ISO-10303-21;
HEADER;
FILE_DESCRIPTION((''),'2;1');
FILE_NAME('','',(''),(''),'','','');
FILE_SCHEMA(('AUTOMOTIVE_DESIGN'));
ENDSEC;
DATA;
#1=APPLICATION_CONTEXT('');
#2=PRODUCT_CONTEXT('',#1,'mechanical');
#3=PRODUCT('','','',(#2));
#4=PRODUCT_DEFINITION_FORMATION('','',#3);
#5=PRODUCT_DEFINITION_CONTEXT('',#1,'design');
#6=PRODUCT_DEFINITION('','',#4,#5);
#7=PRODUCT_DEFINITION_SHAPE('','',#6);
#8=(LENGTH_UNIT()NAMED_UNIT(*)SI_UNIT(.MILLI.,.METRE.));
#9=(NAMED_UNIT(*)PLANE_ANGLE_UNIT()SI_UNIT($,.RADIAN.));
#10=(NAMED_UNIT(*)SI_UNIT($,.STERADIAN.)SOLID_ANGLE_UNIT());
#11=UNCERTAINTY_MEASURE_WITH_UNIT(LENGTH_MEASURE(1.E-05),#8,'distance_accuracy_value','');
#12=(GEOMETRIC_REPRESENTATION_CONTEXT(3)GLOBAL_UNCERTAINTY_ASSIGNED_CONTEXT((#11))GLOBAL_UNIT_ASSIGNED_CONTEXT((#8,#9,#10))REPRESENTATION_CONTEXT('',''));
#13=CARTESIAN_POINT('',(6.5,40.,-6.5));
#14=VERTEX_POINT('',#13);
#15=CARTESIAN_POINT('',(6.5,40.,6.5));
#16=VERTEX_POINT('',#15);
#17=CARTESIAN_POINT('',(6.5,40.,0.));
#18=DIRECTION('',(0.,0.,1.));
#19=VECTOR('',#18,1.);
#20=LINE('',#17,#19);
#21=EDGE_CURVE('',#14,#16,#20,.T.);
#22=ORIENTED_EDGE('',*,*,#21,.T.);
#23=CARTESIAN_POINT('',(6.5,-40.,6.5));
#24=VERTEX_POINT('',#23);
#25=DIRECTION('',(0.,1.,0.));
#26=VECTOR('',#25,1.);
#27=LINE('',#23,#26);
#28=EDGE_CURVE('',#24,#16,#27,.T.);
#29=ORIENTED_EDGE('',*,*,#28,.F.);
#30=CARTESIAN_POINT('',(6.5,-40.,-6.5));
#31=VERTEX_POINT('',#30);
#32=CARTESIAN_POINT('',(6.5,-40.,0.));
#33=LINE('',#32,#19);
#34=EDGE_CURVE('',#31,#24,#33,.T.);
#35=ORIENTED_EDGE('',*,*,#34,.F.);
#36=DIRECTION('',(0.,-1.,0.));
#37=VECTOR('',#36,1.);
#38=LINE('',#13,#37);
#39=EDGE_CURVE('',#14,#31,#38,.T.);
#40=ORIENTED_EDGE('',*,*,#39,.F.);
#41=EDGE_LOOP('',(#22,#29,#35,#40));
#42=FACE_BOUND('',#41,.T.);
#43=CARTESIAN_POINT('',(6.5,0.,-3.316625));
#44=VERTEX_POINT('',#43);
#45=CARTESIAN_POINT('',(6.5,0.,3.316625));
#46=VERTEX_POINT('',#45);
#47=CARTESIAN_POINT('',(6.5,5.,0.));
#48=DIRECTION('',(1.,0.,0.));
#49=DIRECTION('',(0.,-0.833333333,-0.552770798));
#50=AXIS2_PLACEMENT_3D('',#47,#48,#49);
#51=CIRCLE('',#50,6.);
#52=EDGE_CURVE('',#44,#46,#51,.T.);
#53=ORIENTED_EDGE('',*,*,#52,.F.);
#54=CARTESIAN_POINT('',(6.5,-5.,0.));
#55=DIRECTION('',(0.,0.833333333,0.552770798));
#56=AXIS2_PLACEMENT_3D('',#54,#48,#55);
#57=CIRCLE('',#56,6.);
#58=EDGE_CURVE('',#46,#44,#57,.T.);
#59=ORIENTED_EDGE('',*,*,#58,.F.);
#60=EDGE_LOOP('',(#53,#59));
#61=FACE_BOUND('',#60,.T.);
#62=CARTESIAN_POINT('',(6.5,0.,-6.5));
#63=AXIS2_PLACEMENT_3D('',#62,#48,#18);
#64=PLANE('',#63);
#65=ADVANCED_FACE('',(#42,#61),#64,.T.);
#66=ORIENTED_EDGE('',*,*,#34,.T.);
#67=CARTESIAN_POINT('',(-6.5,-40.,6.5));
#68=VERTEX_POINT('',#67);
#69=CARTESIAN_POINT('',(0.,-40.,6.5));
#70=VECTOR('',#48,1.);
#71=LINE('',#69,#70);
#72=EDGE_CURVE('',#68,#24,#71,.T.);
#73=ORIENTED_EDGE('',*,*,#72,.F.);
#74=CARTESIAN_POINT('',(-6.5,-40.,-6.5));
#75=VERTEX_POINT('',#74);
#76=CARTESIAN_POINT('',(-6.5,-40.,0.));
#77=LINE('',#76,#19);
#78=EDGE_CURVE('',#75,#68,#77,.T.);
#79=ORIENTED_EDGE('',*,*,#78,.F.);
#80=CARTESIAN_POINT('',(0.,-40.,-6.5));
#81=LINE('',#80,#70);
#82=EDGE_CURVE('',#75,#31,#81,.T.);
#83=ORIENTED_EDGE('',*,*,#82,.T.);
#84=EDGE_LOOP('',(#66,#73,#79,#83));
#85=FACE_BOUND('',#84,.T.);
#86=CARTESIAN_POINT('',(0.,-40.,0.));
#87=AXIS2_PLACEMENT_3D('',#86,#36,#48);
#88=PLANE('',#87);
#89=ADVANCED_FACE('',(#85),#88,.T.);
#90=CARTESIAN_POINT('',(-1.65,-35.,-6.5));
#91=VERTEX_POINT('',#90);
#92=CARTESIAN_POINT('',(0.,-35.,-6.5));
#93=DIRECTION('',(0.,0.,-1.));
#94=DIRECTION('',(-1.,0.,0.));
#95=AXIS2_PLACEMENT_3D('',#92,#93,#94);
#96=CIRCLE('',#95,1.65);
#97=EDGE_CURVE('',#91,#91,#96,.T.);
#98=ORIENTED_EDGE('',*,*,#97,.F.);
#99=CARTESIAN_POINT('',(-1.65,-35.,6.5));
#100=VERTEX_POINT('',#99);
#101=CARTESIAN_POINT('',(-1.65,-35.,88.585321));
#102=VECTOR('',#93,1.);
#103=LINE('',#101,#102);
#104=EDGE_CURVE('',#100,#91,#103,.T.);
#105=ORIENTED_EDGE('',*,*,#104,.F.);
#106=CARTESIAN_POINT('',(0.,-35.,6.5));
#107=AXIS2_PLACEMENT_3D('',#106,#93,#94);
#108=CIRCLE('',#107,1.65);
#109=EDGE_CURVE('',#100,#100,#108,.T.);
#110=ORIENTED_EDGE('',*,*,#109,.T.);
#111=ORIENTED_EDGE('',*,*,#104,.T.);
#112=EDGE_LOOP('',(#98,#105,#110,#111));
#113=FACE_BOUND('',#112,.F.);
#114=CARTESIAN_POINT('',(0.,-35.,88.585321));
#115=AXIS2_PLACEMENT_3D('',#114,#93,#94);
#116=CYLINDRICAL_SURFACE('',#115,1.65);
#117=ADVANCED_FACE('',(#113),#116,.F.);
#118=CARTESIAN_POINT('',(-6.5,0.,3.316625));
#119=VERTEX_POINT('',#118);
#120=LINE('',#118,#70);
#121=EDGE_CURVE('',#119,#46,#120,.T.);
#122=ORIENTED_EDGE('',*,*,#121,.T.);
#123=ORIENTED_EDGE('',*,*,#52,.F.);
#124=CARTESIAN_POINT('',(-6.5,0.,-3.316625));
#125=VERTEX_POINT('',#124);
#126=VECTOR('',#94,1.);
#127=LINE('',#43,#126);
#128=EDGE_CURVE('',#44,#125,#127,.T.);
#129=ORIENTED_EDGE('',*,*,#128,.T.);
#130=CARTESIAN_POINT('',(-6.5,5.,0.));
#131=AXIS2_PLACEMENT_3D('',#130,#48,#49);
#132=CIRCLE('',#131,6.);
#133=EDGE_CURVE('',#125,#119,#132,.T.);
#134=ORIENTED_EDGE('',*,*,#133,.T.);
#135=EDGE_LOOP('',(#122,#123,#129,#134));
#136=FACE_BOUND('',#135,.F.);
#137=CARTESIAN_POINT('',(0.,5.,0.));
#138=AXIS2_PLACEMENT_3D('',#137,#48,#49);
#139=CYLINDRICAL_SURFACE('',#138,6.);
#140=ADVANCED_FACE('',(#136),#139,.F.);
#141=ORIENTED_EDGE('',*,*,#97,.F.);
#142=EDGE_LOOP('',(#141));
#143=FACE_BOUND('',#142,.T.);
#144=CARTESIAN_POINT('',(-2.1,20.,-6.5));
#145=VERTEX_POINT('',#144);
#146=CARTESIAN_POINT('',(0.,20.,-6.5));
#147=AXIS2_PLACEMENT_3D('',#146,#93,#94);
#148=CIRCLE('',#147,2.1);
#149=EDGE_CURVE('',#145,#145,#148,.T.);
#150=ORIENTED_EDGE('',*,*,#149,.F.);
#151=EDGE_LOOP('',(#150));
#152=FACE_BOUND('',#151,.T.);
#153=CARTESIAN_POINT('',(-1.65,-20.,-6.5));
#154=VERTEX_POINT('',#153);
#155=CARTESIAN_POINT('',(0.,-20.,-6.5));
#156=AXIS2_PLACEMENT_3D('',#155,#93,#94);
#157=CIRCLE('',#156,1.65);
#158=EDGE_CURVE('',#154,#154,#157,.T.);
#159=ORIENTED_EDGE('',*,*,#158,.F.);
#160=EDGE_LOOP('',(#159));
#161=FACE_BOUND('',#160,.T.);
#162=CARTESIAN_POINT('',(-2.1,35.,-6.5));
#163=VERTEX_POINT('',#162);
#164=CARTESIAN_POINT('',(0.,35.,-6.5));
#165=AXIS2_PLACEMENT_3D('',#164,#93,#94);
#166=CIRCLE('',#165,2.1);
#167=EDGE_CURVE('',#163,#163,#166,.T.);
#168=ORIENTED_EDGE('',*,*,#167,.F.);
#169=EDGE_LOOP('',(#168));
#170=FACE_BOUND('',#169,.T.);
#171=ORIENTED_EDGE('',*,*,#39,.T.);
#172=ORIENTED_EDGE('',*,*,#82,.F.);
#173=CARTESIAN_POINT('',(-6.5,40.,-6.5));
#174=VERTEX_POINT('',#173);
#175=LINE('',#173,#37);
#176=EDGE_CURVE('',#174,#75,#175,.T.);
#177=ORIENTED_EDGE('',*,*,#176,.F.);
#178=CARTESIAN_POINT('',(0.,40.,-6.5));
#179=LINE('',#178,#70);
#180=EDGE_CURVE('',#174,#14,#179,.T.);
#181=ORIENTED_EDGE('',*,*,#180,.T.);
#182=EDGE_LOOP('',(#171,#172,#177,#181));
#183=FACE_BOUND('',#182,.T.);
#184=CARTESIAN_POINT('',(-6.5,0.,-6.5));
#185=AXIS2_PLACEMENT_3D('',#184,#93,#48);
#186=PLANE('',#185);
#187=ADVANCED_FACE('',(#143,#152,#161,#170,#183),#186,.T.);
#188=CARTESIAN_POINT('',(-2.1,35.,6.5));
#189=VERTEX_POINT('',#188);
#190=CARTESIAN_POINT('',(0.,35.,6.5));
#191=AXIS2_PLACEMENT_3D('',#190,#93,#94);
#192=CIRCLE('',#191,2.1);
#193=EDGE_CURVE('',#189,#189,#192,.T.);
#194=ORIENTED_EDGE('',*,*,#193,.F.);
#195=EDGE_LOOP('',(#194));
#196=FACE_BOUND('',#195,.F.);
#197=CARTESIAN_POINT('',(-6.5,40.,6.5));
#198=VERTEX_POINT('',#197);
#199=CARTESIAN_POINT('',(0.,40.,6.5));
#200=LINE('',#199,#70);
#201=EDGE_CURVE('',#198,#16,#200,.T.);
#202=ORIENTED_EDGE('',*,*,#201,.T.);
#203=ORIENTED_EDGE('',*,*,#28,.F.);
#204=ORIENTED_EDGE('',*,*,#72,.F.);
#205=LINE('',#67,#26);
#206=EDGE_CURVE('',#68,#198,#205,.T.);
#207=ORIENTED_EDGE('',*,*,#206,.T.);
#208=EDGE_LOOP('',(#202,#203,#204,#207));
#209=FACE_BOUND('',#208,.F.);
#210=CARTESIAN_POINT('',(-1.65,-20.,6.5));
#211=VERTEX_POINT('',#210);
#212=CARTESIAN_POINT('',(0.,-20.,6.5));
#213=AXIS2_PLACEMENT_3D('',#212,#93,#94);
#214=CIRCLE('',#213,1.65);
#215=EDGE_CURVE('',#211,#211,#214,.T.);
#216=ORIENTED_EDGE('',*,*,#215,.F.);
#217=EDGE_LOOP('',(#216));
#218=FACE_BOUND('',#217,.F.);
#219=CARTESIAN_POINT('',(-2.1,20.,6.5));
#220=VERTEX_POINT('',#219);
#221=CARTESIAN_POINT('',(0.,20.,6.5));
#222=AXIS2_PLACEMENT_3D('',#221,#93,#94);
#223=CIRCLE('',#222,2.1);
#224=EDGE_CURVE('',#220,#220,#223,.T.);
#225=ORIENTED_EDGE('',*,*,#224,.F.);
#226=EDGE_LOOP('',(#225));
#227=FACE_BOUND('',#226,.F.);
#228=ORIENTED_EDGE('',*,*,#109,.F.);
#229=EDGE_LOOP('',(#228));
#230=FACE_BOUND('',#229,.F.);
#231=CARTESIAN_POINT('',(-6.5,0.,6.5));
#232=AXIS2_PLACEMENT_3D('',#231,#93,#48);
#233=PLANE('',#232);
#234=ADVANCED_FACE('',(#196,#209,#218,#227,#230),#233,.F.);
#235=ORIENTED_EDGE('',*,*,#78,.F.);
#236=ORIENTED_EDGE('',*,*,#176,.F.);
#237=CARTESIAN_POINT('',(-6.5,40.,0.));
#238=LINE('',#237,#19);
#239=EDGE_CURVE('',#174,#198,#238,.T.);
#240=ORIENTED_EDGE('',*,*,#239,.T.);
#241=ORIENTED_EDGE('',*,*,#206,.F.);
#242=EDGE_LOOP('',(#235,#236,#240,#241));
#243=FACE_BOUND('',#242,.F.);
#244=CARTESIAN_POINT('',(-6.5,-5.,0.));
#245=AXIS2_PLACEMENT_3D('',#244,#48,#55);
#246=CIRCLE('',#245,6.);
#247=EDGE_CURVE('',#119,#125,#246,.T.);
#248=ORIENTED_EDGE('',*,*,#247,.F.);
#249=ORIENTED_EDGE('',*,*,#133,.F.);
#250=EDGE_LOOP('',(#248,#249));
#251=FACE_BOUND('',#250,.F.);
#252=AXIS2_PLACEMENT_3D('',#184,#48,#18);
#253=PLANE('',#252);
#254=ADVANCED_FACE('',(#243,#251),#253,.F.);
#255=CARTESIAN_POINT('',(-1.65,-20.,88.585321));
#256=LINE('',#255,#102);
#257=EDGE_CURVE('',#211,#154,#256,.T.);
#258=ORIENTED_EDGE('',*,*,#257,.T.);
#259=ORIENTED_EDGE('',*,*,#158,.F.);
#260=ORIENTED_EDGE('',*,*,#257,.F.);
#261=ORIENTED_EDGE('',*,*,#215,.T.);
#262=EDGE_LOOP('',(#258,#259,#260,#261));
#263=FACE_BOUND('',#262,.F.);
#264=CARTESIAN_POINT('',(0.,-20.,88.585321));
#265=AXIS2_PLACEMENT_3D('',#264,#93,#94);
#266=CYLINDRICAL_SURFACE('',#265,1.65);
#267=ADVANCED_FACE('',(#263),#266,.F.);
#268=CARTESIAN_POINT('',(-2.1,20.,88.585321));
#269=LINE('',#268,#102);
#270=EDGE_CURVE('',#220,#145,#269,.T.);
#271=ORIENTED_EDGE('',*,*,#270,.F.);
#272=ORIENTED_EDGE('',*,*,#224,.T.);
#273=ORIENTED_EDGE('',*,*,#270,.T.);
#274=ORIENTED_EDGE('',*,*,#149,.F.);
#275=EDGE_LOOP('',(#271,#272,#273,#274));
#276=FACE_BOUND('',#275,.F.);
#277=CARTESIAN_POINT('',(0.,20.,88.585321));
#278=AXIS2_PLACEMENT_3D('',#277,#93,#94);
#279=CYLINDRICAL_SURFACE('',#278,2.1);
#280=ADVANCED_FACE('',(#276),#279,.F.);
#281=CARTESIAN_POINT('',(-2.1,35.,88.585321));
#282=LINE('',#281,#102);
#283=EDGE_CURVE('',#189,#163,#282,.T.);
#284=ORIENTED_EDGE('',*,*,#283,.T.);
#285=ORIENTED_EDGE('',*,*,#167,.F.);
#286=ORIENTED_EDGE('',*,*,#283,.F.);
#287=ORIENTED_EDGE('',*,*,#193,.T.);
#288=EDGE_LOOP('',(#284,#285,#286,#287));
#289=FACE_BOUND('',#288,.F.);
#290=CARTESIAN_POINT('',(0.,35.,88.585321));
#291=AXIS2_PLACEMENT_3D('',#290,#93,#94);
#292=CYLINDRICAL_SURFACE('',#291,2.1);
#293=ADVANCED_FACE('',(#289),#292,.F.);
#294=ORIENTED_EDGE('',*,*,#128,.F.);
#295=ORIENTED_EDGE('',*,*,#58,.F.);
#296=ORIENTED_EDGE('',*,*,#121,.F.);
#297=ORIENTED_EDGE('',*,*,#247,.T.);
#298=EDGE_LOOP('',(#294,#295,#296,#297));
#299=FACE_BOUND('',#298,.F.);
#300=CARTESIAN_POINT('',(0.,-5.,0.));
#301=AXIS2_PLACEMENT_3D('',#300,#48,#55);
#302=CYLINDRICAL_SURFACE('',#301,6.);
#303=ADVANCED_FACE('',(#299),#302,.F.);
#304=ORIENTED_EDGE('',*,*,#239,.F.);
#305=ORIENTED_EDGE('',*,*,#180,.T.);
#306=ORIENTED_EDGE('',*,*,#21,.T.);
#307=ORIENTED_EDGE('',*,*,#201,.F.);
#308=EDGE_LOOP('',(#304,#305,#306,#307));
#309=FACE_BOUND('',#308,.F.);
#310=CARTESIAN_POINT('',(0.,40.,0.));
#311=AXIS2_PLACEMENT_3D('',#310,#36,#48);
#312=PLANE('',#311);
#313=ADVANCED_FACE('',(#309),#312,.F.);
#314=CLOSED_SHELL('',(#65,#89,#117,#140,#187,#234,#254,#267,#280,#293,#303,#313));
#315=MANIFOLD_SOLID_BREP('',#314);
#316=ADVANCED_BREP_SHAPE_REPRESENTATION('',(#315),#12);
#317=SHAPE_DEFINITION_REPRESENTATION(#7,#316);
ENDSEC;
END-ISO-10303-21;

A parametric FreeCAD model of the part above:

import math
import FreeCAD as App
import Part
import Sketcher
Q = App.Units.Quantity


def add_polygon(sketch, points):
    """Adds a closed chain of lines whose ends are joined by coincident constraints."""
    first, n = sketch.GeometryCount, len(points)
    for a, b in zip(points, points[1:] + points[:1]):
        sketch.addGeometry(Part.LineSegment(App.Vector(*a, 0), App.Vector(*b, 0)), False)
    for i in range(n):
        sketch.addConstraint(Sketcher.Constraint("Coincident", first + i, 2, first + (i + 1) % n, 1))

doc = App.newDocument("Part")
body = doc.addObject("PartDesign::Body", "Body")

# Sketch on XZ plane
sketch1 = body.newObject("Sketcher::SketchObject", "Sketch")
sketch1.AttachmentSupport = (doc.getObject("XZ_Plane"), [""])
sketch1.MapMode = "FlatFace"
add_polygon(sketch1, [(-6.5, 6.5), (-6.5, -6.5), (6.5, -6.5), (6.5, 6.5)])  # lines 0-3
sketch1.addConstraint([
    Sketcher.Constraint("Vertical", 0),
    Sketcher.Constraint("Horizontal", 1),
    Sketcher.Constraint("Vertical", 2),
    Sketcher.Constraint("Horizontal", 3),
    Sketcher.Constraint("Symmetric", 0, 2, 2, 2, -1, 1),
    Sketcher.Constraint("Equal", 3, 0),
    Sketcher.Constraint("DistanceX", 1, 1, 1, 2, Q("13 mm")),
])
pad1 = body.newObject("PartDesign::Pad", "Pad")
pad1.Profile = sketch1
pad1.Length = 80
pad1.Midplane = True

# Sketch on YZ plane
sketch2 = body.newObject("Sketcher::SketchObject", "Sketch001")
sketch2.AttachmentSupport = (doc.getObject("YZ_Plane"), [""])
sketch2.MapMode = "FlatFace"
sketch2.addGeometry([
    Part.ArcOfCircle(Part.Circle(App.Vector(5, 0, 0), App.Vector(0, 0, 1), 6), math.radians(-146.44269), math.radians(146.44269)),
    Part.ArcOfCircle(Part.Circle(App.Vector(-5, 0, 0), App.Vector(0, 0, 1), 6), math.radians(33.55731), math.radians(326.44269)),
], False)
sketch2.addConstraint([
    Sketcher.Constraint("Coincident", 0, 1, 1, 2),
    Sketcher.Constraint("Coincident", 1, 1, 0, 2),
    Sketcher.Constraint("Equal", 0, 1),
    Sketcher.Constraint("Symmetric", 0, 3, 1, 3, -1, 1),
    Sketcher.Constraint("PointOnObject", 0, 3, -1),
    Sketcher.Constraint("Radius", 0, Q("6 mm")),
    Sketcher.Constraint("DistanceX", -1, 1, 0, 3, Q("5 mm")),
])
pocket1 = body.newObject("PartDesign::Pocket", "Pocket")
pocket1.Profile = sketch2
pocket1.Length = 13
pocket1.Midplane = True

# Sketch on XY plane
sketch3 = body.newObject("Sketcher::SketchObject", "Sketch002")
sketch3.AttachmentSupport = (doc.getObject("XY_Plane"), [""])
sketch3.MapMode = "FlatFace"
sketch3.AttachmentOffset = App.Placement(App.Vector(0, 0, 6.5), App.Rotation())
sketch3.addGeometry([
    Part.Circle(App.Vector(0, -35, 0), App.Vector(0, 0, 1), 1.65),
    Part.Circle(App.Vector(0, -20, 0), App.Vector(0, 0, 1), 1.65),
], False)
sketch3.addConstraint([
    Sketcher.Constraint("Equal", 0, 1),
    Sketcher.Constraint("PointOnObject", 0, 3, -2),
    Sketcher.Constraint("PointOnObject", 1, 3, -2),
    Sketcher.Constraint("Diameter", 0, Q("3.3 mm")),
    Sketcher.Constraint("DistanceY", 0, 3, -1, 1, Q("35 mm")),
    Sketcher.Constraint("DistanceY", 1, 3, -1, 1, Q("20 mm")),
])
doc.recompute()
hole = body.newObject("PartDesign::Hole", "Hole")
hole.Profile = sketch3
hole.ThreadType = "None"
hole.Diameter = 3.3
hole.DepthType = "ThroughAll"

# Sketch on XY plane
sketch4 = body.newObject("Sketcher::SketchObject", "Sketch003")
sketch4.AttachmentSupport = (doc.getObject("XY_Plane"), [""])
sketch4.MapMode = "FlatFace"
sketch4.AttachmentOffset = App.Placement(App.Vector(0, 0, 6.5), App.Rotation())
sketch4.addGeometry([
    Part.Circle(App.Vector(0, 20, 0), App.Vector(0, 0, 1), 2.1),
    Part.Circle(App.Vector(0, 35, 0), App.Vector(0, 0, 1), 2.1),
], False)
sketch4.addConstraint([
    Sketcher.Constraint("Equal", 0, 1),
    Sketcher.Constraint("PointOnObject", 0, 3, -2),
    Sketcher.Constraint("PointOnObject", 1, 3, -2),
    Sketcher.Constraint("Diameter", 0, Q("4.2 mm")),
    Sketcher.Constraint("DistanceY", -1, 1, 0, 3, Q("20 mm")),
    Sketcher.Constraint("DistanceY", -1, 1, 1, 3, Q("35 mm")),
])
doc.recompute()
hole2 = body.newObject("PartDesign::Hole", "Hole001")
hole2.Profile = sketch4
hole2.ThreadType = "None"
hole2.Diameter = 4.2
hole2.DepthType = "ThroughAll"

doc.recompute()
